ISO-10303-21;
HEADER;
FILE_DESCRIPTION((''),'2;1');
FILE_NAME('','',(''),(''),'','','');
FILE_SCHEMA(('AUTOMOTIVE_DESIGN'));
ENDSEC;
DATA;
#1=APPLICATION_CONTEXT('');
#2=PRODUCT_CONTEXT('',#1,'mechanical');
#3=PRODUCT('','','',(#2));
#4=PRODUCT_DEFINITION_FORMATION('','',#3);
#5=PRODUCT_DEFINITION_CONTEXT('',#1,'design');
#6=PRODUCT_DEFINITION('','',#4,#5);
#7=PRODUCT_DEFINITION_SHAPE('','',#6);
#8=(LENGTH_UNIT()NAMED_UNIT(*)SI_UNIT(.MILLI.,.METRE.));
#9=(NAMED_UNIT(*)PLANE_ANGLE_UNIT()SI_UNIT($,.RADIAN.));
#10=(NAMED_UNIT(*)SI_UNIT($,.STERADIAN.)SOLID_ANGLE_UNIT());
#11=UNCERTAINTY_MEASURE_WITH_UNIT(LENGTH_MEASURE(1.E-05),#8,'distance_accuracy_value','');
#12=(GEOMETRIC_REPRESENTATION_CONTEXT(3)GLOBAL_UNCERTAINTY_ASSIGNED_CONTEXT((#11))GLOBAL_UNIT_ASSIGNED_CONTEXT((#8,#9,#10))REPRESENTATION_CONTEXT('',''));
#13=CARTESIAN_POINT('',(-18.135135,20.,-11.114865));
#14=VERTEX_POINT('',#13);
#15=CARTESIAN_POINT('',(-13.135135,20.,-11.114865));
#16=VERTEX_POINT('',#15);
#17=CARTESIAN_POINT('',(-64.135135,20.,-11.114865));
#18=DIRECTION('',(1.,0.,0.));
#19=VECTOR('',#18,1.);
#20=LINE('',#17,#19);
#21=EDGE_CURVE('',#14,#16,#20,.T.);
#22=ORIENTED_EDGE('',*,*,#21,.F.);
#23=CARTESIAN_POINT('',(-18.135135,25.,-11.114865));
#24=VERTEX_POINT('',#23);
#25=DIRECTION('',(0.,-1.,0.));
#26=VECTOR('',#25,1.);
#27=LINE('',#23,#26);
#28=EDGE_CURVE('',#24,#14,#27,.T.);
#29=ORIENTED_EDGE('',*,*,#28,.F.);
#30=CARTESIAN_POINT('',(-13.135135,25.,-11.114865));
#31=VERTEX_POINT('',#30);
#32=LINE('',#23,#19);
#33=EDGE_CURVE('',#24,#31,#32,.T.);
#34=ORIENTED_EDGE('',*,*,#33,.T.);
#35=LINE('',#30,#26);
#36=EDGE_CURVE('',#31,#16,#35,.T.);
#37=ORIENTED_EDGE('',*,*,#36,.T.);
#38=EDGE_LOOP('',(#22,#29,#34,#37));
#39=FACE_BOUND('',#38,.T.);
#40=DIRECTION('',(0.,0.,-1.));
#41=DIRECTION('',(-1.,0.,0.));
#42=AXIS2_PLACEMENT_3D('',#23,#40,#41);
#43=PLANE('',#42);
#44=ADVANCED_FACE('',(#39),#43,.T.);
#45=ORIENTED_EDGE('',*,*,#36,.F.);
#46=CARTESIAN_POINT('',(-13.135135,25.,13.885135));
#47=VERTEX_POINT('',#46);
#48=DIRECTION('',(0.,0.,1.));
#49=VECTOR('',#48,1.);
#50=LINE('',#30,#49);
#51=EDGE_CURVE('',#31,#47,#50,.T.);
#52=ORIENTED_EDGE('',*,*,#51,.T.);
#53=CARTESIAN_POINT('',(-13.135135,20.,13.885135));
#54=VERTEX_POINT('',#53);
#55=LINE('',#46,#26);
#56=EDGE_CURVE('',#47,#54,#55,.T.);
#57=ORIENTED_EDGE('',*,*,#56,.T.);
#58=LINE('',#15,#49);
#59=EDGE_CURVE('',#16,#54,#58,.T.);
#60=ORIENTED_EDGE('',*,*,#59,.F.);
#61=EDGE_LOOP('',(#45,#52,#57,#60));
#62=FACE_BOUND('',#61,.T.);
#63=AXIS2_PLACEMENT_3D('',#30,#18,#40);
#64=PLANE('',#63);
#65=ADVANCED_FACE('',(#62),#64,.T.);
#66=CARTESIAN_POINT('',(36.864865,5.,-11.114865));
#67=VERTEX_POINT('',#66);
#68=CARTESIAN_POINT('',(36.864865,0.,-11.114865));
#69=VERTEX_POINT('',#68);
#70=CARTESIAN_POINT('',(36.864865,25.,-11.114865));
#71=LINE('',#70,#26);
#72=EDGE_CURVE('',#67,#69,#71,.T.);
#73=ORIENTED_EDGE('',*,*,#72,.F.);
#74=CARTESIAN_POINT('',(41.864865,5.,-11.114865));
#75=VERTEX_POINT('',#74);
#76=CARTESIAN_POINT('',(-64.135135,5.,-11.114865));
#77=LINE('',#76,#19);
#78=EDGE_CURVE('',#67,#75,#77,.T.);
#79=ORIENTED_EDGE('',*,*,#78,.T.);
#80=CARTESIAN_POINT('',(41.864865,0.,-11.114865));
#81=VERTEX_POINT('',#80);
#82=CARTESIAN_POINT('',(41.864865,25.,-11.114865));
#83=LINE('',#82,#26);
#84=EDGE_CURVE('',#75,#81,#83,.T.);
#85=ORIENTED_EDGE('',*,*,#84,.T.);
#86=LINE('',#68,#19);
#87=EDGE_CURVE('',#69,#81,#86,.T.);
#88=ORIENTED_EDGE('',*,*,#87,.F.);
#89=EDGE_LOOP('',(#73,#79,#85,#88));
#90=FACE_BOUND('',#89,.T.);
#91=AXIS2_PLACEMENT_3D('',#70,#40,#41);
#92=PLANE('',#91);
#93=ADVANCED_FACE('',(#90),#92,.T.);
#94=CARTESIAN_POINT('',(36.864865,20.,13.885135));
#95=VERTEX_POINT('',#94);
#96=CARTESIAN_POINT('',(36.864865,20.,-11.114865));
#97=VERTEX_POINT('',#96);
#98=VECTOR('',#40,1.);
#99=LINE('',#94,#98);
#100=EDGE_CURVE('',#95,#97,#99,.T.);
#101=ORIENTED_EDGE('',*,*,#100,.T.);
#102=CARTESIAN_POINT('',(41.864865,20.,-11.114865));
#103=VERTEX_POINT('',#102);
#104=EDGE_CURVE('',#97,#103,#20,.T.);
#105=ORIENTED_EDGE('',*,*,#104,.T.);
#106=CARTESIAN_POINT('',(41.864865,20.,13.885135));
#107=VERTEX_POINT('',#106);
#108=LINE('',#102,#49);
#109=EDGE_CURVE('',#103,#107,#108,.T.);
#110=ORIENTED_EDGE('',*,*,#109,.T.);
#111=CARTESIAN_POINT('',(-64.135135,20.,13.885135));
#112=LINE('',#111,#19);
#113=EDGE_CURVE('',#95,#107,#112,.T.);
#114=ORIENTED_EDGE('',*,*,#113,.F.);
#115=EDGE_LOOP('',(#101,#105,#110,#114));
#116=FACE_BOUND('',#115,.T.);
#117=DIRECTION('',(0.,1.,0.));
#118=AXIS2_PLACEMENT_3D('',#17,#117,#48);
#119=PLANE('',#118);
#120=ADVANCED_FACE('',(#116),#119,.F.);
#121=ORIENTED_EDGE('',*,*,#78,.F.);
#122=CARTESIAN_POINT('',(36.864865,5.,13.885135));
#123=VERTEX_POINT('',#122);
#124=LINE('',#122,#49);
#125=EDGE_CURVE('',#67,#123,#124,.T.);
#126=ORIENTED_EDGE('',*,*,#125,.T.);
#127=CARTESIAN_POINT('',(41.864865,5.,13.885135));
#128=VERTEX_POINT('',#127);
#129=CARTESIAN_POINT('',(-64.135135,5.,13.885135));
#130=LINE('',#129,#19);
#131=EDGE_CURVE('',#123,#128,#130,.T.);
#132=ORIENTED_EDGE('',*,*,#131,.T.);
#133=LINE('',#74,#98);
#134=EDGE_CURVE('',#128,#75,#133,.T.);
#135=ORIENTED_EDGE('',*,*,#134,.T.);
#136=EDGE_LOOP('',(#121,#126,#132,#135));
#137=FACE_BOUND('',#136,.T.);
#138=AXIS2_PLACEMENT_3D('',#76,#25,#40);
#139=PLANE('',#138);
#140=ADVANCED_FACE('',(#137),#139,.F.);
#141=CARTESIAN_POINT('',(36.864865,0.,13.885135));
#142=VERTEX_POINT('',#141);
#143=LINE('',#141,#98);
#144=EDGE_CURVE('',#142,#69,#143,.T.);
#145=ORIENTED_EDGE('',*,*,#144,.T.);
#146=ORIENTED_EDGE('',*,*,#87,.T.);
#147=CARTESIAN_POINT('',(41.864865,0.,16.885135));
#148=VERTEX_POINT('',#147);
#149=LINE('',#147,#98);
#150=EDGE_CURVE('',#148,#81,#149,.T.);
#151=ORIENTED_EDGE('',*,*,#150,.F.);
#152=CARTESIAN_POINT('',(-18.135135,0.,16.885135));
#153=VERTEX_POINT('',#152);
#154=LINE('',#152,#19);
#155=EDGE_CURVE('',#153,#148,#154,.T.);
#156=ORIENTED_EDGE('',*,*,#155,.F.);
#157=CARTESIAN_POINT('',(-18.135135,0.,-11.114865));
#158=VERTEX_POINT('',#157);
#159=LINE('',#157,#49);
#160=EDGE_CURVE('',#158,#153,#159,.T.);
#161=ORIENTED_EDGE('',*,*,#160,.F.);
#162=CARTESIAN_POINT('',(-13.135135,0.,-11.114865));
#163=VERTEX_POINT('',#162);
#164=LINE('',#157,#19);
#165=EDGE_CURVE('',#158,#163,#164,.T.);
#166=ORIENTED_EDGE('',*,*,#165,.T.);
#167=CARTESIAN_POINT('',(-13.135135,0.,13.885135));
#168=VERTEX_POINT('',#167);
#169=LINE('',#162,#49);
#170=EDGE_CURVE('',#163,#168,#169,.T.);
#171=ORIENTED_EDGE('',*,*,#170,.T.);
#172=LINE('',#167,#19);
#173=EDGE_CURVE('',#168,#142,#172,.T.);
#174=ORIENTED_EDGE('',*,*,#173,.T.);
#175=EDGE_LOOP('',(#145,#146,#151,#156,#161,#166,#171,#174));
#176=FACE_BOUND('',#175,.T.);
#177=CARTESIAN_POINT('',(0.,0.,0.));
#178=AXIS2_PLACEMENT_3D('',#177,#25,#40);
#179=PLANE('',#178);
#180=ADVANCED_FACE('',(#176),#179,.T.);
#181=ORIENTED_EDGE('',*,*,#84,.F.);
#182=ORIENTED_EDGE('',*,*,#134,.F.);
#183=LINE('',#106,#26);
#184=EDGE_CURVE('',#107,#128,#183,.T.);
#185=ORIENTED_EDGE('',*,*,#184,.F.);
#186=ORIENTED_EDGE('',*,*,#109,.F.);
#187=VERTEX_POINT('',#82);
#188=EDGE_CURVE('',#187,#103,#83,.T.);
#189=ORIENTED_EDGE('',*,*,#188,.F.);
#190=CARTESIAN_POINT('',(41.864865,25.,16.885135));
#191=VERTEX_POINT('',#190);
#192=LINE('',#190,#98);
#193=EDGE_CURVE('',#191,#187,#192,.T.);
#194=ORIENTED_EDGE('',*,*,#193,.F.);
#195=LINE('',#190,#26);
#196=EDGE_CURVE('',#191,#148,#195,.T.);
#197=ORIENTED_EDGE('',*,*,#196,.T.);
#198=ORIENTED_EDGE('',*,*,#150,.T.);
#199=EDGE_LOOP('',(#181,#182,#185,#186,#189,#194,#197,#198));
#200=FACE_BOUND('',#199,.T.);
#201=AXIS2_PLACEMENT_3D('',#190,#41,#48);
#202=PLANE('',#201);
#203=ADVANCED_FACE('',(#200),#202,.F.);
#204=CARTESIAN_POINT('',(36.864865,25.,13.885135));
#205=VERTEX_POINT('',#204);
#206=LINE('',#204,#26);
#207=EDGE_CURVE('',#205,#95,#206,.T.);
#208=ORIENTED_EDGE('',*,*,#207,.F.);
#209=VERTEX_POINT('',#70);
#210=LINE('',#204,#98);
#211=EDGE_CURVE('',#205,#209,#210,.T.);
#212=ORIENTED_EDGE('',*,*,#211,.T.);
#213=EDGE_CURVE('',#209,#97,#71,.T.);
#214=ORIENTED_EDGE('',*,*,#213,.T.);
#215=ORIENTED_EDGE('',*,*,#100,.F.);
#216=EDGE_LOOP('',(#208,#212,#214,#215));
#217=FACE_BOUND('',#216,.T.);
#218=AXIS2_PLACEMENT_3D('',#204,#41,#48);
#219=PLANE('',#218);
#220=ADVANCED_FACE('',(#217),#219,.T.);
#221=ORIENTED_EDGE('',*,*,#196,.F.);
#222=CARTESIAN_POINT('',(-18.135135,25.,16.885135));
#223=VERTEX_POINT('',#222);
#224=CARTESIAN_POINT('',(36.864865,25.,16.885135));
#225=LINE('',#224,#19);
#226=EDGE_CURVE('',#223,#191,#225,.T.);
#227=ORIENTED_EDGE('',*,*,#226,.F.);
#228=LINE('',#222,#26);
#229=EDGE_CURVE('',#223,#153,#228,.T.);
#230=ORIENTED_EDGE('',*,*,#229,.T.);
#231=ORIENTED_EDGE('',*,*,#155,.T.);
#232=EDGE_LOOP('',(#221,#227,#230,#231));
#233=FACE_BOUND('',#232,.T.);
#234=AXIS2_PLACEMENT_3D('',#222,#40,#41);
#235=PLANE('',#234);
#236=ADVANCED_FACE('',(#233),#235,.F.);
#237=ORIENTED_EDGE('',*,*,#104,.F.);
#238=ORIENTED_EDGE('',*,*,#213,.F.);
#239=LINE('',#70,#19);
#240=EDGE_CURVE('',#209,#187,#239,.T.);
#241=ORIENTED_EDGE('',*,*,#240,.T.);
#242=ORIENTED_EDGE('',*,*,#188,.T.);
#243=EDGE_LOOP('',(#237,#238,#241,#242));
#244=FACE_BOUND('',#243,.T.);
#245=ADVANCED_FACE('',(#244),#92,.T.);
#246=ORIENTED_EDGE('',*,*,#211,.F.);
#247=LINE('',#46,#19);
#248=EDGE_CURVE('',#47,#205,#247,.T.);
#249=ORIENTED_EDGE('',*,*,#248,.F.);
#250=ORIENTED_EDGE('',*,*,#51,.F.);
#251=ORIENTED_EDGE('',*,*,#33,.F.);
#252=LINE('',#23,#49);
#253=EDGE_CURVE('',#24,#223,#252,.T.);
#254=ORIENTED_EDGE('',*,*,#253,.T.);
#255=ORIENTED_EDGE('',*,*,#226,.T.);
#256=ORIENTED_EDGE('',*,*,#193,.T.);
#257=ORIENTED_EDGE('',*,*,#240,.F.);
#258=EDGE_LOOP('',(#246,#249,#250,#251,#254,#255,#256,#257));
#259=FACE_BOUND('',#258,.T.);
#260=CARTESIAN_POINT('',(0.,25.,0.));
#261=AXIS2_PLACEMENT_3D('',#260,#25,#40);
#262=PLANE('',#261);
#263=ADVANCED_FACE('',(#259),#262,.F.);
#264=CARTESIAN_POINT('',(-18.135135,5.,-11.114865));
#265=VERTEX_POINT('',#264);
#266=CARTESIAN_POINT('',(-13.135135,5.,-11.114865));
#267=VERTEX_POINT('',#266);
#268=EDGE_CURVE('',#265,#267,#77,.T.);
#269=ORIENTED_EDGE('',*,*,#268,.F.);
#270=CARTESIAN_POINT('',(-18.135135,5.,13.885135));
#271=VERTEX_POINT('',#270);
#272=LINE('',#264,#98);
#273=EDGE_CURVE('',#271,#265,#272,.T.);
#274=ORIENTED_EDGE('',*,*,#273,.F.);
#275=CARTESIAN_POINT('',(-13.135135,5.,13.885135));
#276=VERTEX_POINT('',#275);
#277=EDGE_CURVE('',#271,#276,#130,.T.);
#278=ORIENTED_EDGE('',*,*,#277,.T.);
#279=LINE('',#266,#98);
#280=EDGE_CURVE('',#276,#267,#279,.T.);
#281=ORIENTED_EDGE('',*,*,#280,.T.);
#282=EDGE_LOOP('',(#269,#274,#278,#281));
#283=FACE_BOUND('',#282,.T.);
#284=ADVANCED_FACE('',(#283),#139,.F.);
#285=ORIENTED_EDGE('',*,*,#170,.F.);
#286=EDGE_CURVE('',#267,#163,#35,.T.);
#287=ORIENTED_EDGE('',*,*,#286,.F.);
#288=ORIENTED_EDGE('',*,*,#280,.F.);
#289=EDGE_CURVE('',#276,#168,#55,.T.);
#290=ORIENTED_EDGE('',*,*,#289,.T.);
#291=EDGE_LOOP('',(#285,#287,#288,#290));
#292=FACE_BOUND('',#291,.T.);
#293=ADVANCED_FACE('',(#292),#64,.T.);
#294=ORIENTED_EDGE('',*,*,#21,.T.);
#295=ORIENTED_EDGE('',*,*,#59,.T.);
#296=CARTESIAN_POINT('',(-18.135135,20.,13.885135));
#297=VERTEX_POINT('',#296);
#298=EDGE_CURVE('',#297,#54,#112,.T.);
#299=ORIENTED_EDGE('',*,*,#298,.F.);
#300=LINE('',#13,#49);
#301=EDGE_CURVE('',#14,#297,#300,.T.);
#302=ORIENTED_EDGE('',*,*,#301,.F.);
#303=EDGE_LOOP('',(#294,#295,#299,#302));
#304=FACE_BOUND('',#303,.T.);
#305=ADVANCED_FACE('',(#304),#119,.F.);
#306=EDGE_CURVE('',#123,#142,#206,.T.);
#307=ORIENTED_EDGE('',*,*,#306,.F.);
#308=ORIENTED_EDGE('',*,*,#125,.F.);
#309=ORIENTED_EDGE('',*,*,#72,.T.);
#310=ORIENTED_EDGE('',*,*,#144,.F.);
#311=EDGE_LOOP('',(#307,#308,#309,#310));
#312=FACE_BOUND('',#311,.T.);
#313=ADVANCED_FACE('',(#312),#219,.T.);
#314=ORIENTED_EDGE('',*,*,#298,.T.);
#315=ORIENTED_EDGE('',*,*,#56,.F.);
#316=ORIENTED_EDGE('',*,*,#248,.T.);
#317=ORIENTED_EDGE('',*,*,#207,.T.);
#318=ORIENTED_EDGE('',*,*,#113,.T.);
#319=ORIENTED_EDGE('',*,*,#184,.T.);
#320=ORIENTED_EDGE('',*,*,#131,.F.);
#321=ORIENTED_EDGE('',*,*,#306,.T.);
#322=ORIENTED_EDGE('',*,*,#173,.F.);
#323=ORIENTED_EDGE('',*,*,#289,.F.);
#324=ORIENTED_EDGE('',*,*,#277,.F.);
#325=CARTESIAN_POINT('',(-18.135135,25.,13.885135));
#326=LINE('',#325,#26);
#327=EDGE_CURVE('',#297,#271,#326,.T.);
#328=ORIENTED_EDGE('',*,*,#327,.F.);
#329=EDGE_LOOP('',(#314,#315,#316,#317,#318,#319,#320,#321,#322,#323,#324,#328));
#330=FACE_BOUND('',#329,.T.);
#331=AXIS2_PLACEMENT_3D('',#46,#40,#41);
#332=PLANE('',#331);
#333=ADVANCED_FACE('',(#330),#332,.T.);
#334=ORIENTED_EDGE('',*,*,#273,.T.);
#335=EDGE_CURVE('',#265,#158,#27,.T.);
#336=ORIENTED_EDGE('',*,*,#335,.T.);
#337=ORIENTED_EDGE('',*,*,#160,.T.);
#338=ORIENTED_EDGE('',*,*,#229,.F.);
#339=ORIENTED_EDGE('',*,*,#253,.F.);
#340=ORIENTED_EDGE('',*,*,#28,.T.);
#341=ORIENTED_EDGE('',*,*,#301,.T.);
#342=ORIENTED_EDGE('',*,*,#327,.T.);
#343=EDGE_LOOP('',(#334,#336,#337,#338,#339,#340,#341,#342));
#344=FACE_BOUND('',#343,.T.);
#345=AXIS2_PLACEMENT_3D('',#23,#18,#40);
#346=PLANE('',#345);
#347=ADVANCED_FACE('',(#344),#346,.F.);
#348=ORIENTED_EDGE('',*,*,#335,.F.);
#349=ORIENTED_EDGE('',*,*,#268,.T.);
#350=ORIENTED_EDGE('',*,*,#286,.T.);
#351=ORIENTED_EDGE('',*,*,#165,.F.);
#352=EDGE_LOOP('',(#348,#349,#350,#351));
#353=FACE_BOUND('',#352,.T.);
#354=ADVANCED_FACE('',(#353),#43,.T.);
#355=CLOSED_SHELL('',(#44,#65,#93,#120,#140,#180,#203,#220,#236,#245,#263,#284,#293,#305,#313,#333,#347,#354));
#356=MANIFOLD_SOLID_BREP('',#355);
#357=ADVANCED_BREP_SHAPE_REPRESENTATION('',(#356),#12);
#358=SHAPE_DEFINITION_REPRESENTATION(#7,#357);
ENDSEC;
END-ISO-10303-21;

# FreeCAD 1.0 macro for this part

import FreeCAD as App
import Part
import Sketcher


def add_polygon(sketch, points):
    """Adds a closed chain of lines whose ends are joined by coincident constraints."""
    first, n = sketch.GeometryCount, len(points)
    for a, b in zip(points, points[1:] + points[:1]):
        sketch.addGeometry(Part.LineSegment(App.Vector(*a, 0), App.Vector(*b, 0)), False)
    for i in range(n):
        sketch.addConstraint(Sketcher.Constraint("Coincident", first + i, 2, first + (i + 1) % n, 1))

doc = App.newDocument("Part")
body = doc.addObject("PartDesign::Body", "Body")

# Sketch on XZ plane
sketch1 = body.newObject("Sketcher::SketchObject", "Sketch")
sketch1.AttachmentSupport = (doc.getObject("XZ_Plane"), [""])
sketch1.MapMode = "FlatFace"
add_polygon(sketch1, [(36.864865, -11.114865), (36.864865, 13.885135), (-13.135135, 13.885135), (-13.135135, -11.114865), (-18.135135, -11.114865), (-18.135135, 16.885135), (41.864865, 16.885135), (41.864865, -11.114865)])  # lines 0-7
sketch1.addConstraint(Sketcher.Constraint("Vertical", 0))
sketch1.addConstraint(Sketcher.Constraint("Horizontal", 1))
sketch1.addConstraint(Sketcher.Constraint("Vertical", 2))
sketch1.addConstraint(Sketcher.Constraint("Horizontal", 3))
sketch1.addConstraint(Sketcher.Constraint("Vertical", 4))
sketch1.addConstraint(Sketcher.Constraint("Horizontal", 5))
sketch1.addConstraint(Sketcher.Constraint("Vertical", 6))
sketch1.addConstraint(Sketcher.Constraint("Horizontal", 7))
sketch1.addConstraint(Sketcher.Constraint("Horizontal", 3, 2, 6, 2))
sketch1.addConstraint(Sketcher.Constraint("Equal", 3, 7))
sketch1.addConstraint(Sketcher.Constraint("DistanceX", 1, 2, 1, 1, 50.0))
sketch1.addConstraint(Sketcher.Constraint("DistanceX", 3, 2, 3, 1, 5.0))
sketch1.addConstraint(Sketcher.Constraint("DistanceY", 0, 1, 0, 2, 25.0))
sketch1.addConstraint(Sketcher.Constraint("DistanceY", 4, 1, 4, 2, 28.0))
sketch1.addConstraint(Sketcher.Constraint("DistanceX", -1, 1, 0, 2, 36.864865))
sketch1.addConstraint(Sketcher.Constraint("DistanceY", -1, 1, 0, 2, 13.885135))
pad1 = body.newObject("PartDesign::Pad", "Pad")
pad1.Profile = sketch1
pad1.Length = 25
pad1.Reversed = True

# Sketch on YZ plane
sketch2 = body.newObject("Sketcher::SketchObject", "Sketch001")
sketch2.AttachmentSupport = (doc.getObject("YZ_Plane"), [""])
sketch2.MapMode = "FlatFace"
sketch2.AttachmentOffset = App.Placement(App.Vector(0, 0, 41.864865), App.Rotation())
add_polygon(sketch2, [(20, 13.885135), (5, 13.885135), (5, -11.114865), (20, -11.114865)])  # lines 0-3
sketch2.addConstraint(Sketcher.Constraint("Horizontal", 0))
sketch2.addConstraint(Sketcher.Constraint("Vertical", 1))
sketch2.addConstraint(Sketcher.Constraint("Horizontal", 2))
sketch2.addConstraint(Sketcher.Constraint("Vertical", 3))
sketch2.addConstraint(Sketcher.Constraint("DistanceX", 0, 2, 0, 1, 15.0))
sketch2.addConstraint(Sketcher.Constraint("DistanceY", 1, 2, 1, 1, 25.0))
sketch2.addConstraint(Sketcher.Constraint("DistanceX", -1, 1, 0, 2, 5.0))
sketch2.addConstraint(Sketcher.Constraint("DistanceY", -1, 1, 0, 2, 13.885135))
pocket1 = body.newObject("PartDesign::Pocket", "Pocket")
pocket1.Profile = sketch2
pocket1.Length = 106

doc.recompute()
